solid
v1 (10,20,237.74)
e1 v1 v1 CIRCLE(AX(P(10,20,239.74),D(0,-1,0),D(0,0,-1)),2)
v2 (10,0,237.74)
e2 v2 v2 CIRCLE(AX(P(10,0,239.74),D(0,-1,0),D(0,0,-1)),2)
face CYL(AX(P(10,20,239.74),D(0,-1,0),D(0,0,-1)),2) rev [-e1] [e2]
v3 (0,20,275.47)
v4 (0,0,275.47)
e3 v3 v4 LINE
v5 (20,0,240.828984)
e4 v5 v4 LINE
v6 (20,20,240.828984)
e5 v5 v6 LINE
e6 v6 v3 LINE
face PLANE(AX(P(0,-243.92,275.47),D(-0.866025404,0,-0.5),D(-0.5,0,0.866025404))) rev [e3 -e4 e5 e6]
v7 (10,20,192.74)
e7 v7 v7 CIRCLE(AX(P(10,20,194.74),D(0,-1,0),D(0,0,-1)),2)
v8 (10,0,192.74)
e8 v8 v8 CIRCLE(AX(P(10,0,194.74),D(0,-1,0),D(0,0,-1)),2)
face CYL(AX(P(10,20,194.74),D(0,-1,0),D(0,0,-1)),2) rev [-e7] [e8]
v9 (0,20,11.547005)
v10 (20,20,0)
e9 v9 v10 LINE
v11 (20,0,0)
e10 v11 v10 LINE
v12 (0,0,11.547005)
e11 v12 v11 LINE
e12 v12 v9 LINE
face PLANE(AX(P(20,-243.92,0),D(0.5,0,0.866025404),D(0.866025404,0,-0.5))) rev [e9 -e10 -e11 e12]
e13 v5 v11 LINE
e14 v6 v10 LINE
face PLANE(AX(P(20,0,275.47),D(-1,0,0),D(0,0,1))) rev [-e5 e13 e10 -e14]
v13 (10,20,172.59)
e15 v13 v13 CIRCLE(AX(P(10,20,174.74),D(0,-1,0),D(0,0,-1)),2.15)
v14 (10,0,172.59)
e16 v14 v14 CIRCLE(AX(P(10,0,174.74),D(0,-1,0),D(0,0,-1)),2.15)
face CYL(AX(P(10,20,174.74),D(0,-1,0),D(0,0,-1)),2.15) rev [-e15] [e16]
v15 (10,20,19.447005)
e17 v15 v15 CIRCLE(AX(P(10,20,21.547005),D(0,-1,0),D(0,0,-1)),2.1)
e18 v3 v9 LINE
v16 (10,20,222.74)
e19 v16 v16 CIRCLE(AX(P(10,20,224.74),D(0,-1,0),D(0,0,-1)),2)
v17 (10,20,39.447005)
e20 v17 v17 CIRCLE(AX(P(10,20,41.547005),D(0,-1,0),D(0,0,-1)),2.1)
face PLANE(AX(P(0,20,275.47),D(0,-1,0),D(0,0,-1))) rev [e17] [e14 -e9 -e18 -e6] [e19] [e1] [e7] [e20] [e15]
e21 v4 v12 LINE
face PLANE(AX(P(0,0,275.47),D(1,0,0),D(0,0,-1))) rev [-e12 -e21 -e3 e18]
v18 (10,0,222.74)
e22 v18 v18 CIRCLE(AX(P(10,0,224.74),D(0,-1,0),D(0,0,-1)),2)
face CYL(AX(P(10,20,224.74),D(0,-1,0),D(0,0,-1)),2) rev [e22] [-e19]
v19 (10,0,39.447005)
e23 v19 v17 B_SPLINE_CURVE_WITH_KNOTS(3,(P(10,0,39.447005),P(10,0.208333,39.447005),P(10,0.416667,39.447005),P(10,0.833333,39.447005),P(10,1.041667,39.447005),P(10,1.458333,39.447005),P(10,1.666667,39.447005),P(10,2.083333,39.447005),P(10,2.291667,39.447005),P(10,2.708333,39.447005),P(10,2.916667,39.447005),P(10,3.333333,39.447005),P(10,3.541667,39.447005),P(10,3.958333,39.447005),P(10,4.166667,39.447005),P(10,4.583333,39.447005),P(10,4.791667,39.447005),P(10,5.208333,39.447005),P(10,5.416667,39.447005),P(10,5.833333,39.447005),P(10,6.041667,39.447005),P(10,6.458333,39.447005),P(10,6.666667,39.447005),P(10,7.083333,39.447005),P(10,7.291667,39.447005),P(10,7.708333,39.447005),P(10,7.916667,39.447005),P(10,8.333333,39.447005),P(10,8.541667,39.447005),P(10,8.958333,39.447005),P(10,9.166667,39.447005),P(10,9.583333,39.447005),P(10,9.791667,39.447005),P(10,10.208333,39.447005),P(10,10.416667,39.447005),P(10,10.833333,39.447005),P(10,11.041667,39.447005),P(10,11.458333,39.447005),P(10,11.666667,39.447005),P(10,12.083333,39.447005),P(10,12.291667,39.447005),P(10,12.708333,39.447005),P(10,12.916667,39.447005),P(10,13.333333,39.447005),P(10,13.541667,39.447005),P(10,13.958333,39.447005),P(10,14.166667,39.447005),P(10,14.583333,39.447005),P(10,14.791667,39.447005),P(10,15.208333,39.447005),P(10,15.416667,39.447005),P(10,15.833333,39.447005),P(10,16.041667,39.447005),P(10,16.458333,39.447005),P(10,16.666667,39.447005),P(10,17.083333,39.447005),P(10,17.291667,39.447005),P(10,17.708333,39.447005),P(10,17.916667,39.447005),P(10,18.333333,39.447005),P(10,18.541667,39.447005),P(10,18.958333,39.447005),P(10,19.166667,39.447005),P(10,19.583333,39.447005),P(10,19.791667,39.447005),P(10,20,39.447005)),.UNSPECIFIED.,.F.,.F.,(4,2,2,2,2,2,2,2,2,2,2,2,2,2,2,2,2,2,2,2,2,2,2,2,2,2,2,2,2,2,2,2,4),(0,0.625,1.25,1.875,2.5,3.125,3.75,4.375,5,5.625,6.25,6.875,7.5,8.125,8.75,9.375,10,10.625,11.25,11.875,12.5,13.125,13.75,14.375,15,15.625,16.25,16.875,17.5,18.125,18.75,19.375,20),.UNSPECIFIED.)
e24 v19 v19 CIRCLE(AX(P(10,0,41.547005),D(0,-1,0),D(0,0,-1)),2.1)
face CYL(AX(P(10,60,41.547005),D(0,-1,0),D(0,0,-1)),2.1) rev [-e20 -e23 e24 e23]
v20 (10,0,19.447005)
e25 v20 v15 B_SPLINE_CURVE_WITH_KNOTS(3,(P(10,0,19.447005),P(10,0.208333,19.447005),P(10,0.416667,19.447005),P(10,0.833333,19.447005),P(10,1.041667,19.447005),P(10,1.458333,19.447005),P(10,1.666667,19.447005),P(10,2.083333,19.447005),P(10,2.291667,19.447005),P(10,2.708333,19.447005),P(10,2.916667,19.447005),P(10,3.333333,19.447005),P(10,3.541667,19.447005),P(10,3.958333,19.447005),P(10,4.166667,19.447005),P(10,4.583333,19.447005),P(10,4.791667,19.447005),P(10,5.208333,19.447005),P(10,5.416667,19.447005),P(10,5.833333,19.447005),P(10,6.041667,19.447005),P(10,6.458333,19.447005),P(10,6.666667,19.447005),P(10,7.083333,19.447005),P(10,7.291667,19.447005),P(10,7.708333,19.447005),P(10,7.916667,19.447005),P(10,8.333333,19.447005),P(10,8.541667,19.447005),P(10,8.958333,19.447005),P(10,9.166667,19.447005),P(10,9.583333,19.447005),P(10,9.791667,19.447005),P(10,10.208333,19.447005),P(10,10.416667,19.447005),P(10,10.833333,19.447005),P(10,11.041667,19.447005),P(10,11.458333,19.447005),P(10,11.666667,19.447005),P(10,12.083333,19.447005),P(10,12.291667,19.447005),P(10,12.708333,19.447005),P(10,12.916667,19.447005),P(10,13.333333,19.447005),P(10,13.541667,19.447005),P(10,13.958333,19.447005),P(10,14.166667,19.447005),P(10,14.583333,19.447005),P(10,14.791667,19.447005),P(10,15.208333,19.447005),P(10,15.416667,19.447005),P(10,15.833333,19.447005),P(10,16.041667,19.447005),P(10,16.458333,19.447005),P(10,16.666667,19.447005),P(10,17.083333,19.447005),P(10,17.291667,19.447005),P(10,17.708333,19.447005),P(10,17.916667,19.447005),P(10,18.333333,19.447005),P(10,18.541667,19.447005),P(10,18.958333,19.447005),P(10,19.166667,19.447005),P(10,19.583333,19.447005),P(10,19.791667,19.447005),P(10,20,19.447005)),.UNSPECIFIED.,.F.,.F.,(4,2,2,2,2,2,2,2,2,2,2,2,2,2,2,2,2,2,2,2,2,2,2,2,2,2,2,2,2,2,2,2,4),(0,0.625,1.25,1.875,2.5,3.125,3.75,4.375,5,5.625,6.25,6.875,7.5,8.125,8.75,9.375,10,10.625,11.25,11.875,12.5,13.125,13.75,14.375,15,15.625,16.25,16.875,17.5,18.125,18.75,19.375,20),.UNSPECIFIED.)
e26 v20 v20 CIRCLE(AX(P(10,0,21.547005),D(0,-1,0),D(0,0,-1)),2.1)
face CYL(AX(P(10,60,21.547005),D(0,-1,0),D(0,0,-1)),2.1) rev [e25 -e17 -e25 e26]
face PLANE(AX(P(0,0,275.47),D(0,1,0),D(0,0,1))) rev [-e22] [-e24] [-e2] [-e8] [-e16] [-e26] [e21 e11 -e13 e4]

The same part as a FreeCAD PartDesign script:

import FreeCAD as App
import Part
import Sketcher

V = App.Vector
Q = App.Units.Quantity


def add_polygon(sketch, points):
    """Adds a closed chain of lines whose ends are joined by coincident constraints."""
    first, n = sketch.GeometryCount, len(points)
    for a, b in zip(points, points[1:] + points[:1]):
        sketch.addGeometry(Part.LineSegment(App.Vector(*a, 0), App.Vector(*b, 0)), False)
    for i in range(n):
        sketch.addConstraint(Sketcher.Constraint("Coincident", first + i, 2, first + (i + 1) % n, 1))

doc = App.newDocument("Part")
body = doc.addObject("PartDesign::Body", "Body")

sketch1 = body.newObject("Sketcher::SketchObject", "Sketch")
sketch1.AttachmentSupport = (doc.getObject("XY_Plane"), [""])
sketch1.MapMode = "FlatFace"
add_polygon(sketch1, [(0, 20), (0, 0), (20, 0), (20, 20)])
sketch1.addConstraint([
    Sketcher.Constraint("Vertical", 0),
    Sketcher.Constraint("Horizontal", 1),
    Sketcher.Constraint("Vertical", 2),
    Sketcher.Constraint("Horizontal", 3),
    Sketcher.Constraint("Coincident", 0, 2, -1, 1),
    Sketcher.Constraint("Equal", 3, 0),
    Sketcher.Constraint("DistanceX", 1, 1, 1, 2, Q("20 mm")),
])
pad1 = body.newObject("PartDesign::Pad", "Pad")
pad1.Profile = sketch1
pad1.Length = 275.47

sketch2 = body.newObject("Sketcher::SketchObject", "Sketch001")
sketch2.AttachmentSupport = (doc.getObject("XZ_Plane"), [""])
sketch2.MapMode = "FlatFace"
sketch2.AttachmentOffset = App.Placement(V(0, 0, -20), App.Rotation())
add_polygon(sketch2, [(20, 241), (0, 275), (20, 275)])
add_polygon(sketch2, [(0, 12), (20, 0), (0, 0)])
sketch2.addConstraint([
    Sketcher.Constraint("Horizontal", 1),
    Sketcher.Constraint("Vertical", 2),
    Sketcher.Constraint("Horizontal", 4),
    Sketcher.Constraint("Vertical", 5),
    Sketcher.Constraint("Coincident", 4, 2, -1, 1),
    Sketcher.Constraint("PointOnObject", 0, 2, -2),
    Sketcher.Constraint("Vertical", 2, 2, 3, 2),
    Sketcher.Constraint("DistanceX", 1, 1, 1, 2, Q("20 mm")),
    Sketcher.Constraint("Angle", 0, Q("120 deg")),
    Sketcher.Constraint("Angle", 3, Q("-30 deg")),
    Sketcher.Constraint("DistanceY", -1, 1, 0, 2, Q("275.47 mm")),
])
pocket1 = body.newObject("PartDesign::Pocket", "Pocket")
pocket1.Profile = sketch2
pocket1.Length = 263.92
pocket1.Reversed = True

sketch3 = body.newObject("Sketcher::SketchObject", "Sketch002")
sketch3.AttachmentSupport = (doc.getObject("XZ_Plane"), [""])
sketch3.MapMode = "FlatFace"
sketch3.addGeometry([
    Part.Circle(V(10, 239.7, 0), V(0, 0, 1), 2),
    Part.Circle(V(10, 224.7, 0), V(0, 0, 1), 2),
    Part.Circle(V(10, 194.7, 0), V(0, 0, 1), 2),
    Part.Circle(V(10, 174.7, 0), V(0, 0, 1), 2.1),
], False)
sketch3.addConstraint([
    Sketcher.Constraint("Equal", 0, 1),
    Sketcher.Constraint("Equal", 1, 2),
    Sketcher.Constraint("Vertical", 0, 3, 1, 3),
    Sketcher.Constraint("Vertical", 1, 3, 2, 3),
    Sketcher.Constraint("Vertical", 2, 3, 3, 3),
    Sketcher.Constraint("Diameter", 0, Q("4 mm")),
    Sketcher.Constraint("Diameter", 3, Q("4.3 mm")),
    Sketcher.Constraint("DistanceX", -1, 1, 0, 3, Q("10 mm")),
    Sketcher.Constraint("DistanceY", 1, 3, 0, 3, Q("15 mm")),
    Sketcher.Constraint("DistanceY", 2, 3, 1, 3, Q("30 mm")),
    Sketcher.Constraint("DistanceY", 3, 3, 2, 3, Q("20 mm")),
    Sketcher.Constraint("DistanceY", -1, 1, 0, 3, Q("239.74 mm")),
])
pocket2 = body.newObject("PartDesign::Pocket", "Pocket001")
pocket2.Profile = sketch3
pocket2.Type = "ThroughAll"
pocket2.Midplane = True

sketch4 = body.newObject("Sketcher::SketchObject", "Sketch003")
sketch4.AttachmentSupport = (doc.getObject("XZ_Plane"), [""])
sketch4.MapMode = "FlatFace"
sketch4.addGeometry([
    Part.Circle(V(10, 21.5, 0), V(0, 0, 1), 2.1),
    Part.Circle(V(10, 41.5, 0), V(0, 0, 1), 2.1),
], False)
sketch4.addConstraint([
    Sketcher.Constraint("Equal", 0, 1),
    Sketcher.Constraint("Vertical", 0, 3, 1, 3),
    Sketcher.Constraint("Diameter", 0, Q("4.2 mm")),
    Sketcher.Constraint("DistanceX", -1, 1, 0, 3, Q("10 mm")),
    Sketcher.Constraint("DistanceY", 0, 3, 1, 3, Q("20 mm")),
    Sketcher.Constraint("DistanceY", -1, 1, 0, 3, Q("21.547005 mm")),
])
pocket3 = body.newObject("PartDesign::Pocket", "Pocket002")
pocket3.Profile = sketch4
pocket3.Length = 60

doc.recompute()
